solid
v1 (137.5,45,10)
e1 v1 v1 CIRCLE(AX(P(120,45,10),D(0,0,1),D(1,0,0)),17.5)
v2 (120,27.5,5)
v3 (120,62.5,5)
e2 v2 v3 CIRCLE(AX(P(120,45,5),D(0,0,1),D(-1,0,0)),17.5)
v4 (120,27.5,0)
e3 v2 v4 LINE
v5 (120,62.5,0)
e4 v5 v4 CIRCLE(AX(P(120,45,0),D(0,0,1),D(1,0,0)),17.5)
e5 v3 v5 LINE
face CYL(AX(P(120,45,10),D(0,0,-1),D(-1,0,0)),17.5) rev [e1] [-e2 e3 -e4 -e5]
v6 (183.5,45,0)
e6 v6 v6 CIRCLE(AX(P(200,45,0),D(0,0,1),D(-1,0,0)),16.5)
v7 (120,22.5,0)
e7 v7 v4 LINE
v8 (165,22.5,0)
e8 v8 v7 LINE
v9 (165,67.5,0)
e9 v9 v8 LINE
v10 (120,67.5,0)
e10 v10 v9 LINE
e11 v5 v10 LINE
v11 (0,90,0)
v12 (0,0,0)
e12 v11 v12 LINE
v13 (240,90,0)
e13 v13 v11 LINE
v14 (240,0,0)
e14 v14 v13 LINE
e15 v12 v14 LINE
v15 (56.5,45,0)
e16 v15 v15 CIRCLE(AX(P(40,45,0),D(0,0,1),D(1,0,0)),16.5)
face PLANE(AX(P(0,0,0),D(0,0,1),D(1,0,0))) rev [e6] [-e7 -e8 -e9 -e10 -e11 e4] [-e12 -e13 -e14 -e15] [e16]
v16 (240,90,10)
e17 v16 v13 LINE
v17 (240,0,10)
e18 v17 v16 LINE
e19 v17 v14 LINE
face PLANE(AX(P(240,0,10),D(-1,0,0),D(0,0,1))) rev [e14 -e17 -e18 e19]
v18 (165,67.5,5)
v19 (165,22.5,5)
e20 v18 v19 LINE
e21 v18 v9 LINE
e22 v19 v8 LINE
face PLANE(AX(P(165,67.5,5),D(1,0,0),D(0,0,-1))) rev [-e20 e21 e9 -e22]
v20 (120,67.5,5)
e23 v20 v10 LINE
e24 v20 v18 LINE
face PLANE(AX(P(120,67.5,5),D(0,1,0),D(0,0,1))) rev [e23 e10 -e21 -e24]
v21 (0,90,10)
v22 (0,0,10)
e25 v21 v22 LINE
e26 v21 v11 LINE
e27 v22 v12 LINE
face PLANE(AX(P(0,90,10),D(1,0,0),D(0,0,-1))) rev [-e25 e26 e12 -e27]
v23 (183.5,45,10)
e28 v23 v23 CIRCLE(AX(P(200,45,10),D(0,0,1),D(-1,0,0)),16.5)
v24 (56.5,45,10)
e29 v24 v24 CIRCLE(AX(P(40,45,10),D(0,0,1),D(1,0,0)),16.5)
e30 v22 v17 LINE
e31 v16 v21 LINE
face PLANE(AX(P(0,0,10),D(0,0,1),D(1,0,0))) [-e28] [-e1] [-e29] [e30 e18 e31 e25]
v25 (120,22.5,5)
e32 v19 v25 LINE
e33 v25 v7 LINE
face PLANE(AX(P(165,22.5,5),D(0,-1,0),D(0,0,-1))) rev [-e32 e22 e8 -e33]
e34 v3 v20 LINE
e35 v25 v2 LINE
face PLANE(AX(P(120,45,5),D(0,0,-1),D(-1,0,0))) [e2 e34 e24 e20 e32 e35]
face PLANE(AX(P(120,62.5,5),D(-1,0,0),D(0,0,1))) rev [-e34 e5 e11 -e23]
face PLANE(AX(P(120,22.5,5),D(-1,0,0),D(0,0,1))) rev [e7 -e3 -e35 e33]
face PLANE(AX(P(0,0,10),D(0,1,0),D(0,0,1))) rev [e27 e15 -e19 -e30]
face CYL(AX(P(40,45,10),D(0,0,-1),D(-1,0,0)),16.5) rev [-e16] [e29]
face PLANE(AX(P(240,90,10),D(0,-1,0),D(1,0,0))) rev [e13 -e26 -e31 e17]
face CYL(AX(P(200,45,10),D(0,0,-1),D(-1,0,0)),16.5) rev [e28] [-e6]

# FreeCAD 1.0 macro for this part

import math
import FreeCAD as App
import Part
import Sketcher

V = App.Vector

doc = App.newDocument("Part")
body = doc.addObject("PartDesign::Body", "Body")

sketch1 = body.newObject("Sketcher::SketchObject", "Sketch")
sketch1.AttachmentSupport = (doc.getObject("XY_Plane"), [""])
sketch1.MapMode = "FlatFace"
sketch1.addGeometry([
    Part.LineSegment(V(0, 90, 0), V(0, 0, 0)),
    Part.LineSegment(V(0, 0, 0), V(240, 0, 0)),
    Part.LineSegment(V(240, 0, 0), V(240, 90, 0)),
    Part.LineSegment(V(240, 90, 0), V(0, 90, 0)),
    Part.Circle(V(40, 45, 0), V(0, 0, 1), 16.5),
    Part.Circle(V(120, 45, 0), V(0, 0, 1), 17.5),
    Part.Circle(V(200, 45, 0), V(0, 0, 1), 16.5),
], False)
sketch1.addConstraint([
    Sketcher.Constraint("Coincident", 0, 2, 1, 1),
    Sketcher.Constraint("Coincident", 1, 2, 2, 1),
    Sketcher.Constraint("Coincident", 2, 2, 3, 1),
    Sketcher.Constraint("Coincident", 3, 2, 0, 1),
    Sketcher.Constraint("Vertical", 0),
    Sketcher.Constraint("Horizontal", 1),
    Sketcher.Constraint("Vertical", 2),
    Sketcher.Constraint("Horizontal", 3),
    Sketcher.Constraint("Coincident", 0, 2, -1, 1),
    Sketcher.Constraint("Equal", 4, 6),
    Sketcher.Constraint("Horizontal", 4, 3, 5, 3),
    Sketcher.Constraint("Horizontal", 5, 3, 6, 3),
    Sketcher.Constraint("Diameter", 4, 33.0),
    Sketcher.Constraint("Diameter", 5, 35.0),
    Sketcher.Constraint("DistanceX", 1, 1, 1, 2, 240.0),
    Sketcher.Constraint("DistanceY", 0, 2, 0, 1, 90.0),
    Sketcher.Constraint("DistanceX", -1, 1, 4, 3, 40.0),
    Sketcher.Constraint("DistanceY", -1, 1, 4, 3, 45.0),
    Sketcher.Constraint("DistanceX", -1, 1, 5, 3, 120.0),
    Sketcher.Constraint("DistanceX", -1, 1, 6, 3, 200.0),
])
pad1 = body.newObject("PartDesign::Pad", "Pad")
pad1.Profile = sketch1
pad1.Length = 10

sketch2 = body.newObject("Sketcher::SketchObject", "Sketch001")
sketch2.AttachmentSupport = (doc.getObject("XY_Plane"), [""])
sketch2.MapMode = "FlatFace"
sketch2.addGeometry([
    Part.LineSegment(V(120, 62.5, 0), V(120, 67.5, 0)),
    Part.LineSegment(V(120, 67.5, 0), V(165, 67.5, 0)),
    Part.LineSegment(V(165, 67.5, 0), V(165, 22.5, 0)),
    Part.LineSegment(V(165, 22.5, 0), V(120, 22.5, 0)),
    Part.LineSegment(V(120, 22.5, 0), V(120, 27.5, 0)),
    Part.ArcOfCircle(Part.Circle(V(120, 45, 0), V(0, 0, 1), 17.5), math.radians(-90), math.radians(90)),
], False)
sketch2.addConstraint([
    Sketcher.Constraint("Coincident", 0, 2, 1, 1),
    Sketcher.Constraint("Coincident", 1, 2, 2, 1),
    Sketcher.Constraint("Coincident", 2, 2, 3, 1),
    Sketcher.Constraint("Coincident", 3, 2, 4, 1),
    Sketcher.Constraint("Coincident", 4, 2, 5, 1),
    Sketcher.Constraint("Coincident", 5, 2, 0, 1),
    Sketcher.Constraint("Vertical", 0),
    Sketcher.Constraint("Horizontal", 1),
    Sketcher.Constraint("Vertical", 2),
    Sketcher.Constraint("Horizontal", 3),
    Sketcher.Constraint("Vertical", 4),
    Sketcher.Constraint("Vertical", 5, 3, 0, 2),
    Sketcher.Constraint("Vertical", 0, 2, 3, 2),
    Sketcher.Constraint("Equal", 3, 2),
    Sketcher.Constraint("Equal", 0, 4),
    Sketcher.Constraint("Radius", 5, 17.5),
    Sketcher.Constraint("DistanceX", 1, 1, 1, 2, 45.0),
    Sketcher.Constraint("DistanceX", -1, 1, 5, 3, 120.0),
    Sketcher.Constraint("DistanceY", -1, 1, 5, 3, 45.0),
])
pocket1 = body.newObject("PartDesign::Pocket", "Pocket")
pocket1.Profile = sketch2
pocket1.Length = 5
pocket1.Reversed = True

doc.recompute()
